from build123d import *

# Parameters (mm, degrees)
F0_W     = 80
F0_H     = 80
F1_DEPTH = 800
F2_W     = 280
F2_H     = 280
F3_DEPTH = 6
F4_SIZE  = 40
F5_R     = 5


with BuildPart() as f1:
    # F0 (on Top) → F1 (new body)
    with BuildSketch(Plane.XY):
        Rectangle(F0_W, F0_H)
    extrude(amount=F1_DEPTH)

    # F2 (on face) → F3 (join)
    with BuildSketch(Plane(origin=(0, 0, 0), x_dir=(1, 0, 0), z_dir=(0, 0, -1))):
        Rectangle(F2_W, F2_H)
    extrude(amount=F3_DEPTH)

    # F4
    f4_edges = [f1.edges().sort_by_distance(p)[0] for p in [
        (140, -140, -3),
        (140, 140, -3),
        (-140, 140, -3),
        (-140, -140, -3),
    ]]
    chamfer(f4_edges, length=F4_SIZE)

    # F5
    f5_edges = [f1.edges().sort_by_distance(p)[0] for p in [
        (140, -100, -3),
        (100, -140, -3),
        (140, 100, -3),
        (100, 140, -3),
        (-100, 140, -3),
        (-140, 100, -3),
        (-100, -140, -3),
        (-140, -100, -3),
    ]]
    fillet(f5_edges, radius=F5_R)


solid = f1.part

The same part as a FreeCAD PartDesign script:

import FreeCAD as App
import Part
import Sketcher
Q = App.Units.Quantity


def edges_at(feature, points):
    """Names of the edges that pass closest to the given points."""
    edges = feature.Shape.Edges
    near = lambda p: min(range(len(edges)), key=lambda i: edges[i].distToShape(Part.Vertex(*p))[0])
    return sorted({f"Edge{near(p) + 1}" for p in points})


def add_polygon(sketch, points):
    """Adds a closed chain of lines whose ends are joined by coincident constraints."""
    first, n = sketch.GeometryCount, len(points)
    for a, b in zip(points, points[1:] + points[:1]):
        sketch.addGeometry(Part.LineSegment(App.Vector(*a, 0), App.Vector(*b, 0)), False)
    for i in range(n):
        sketch.addConstraint(Sketcher.Constraint("Coincident", first + i, 2, first + (i + 1) % n, 1))

doc = App.newDocument("Part")
body = doc.addObject("PartDesign::Body", "Body")

# Sketch on XY plane
sketch1 = doc.addObject("Sketcher::SketchObject", "Sketch")
body.addObject(sketch1)
sketch1.AttachmentSupport = (doc.XY_Plane, [""])
sketch1.MapMode = "FlatFace"
add_polygon(sketch1, [(-40, 40), (-40, -40), (40, -40), (40, 40)])  # lines 0-3
sketch1.addConstraint(Sketcher.Constraint("Vertical", 0))
sketch1.addConstraint(Sketcher.Constraint("Horizontal", 1))
sketch1.addConstraint(Sketcher.Constraint("Vertical", 2))
sketch1.addConstraint(Sketcher.Constraint("Horizontal", 3))
sketch1.addConstraint(Sketcher.Constraint("Symmetric", 0, 2, 2, 2, -1, 1))
sketch1.addConstraint(Sketcher.Constraint("Equal", 3, 0))
sketch1.addConstraint(Sketcher.Constraint("DistanceX", 1, 1, 1, 2, Q("80 mm")))
pad1 = doc.addObject("PartDesign::Pad", "Pad")
body.addObject(pad1)
pad1.Profile = sketch1
pad1.Length = 800

# Sketch on XY plane
sketch2 = doc.addObject("Sketcher::SketchObject", "Sketch001")
body.addObject(sketch2)
sketch2.AttachmentSupport = (doc.XY_Plane, [""])
sketch2.MapMode = "FlatFace"
add_polygon(sketch2, [(-140, -140), (-140, 140), (140, 140), (140, -140)])  # lines 0-3
sketch2.addConstraint(Sketcher.Constraint("Vertical", 0))
sketch2.addConstraint(Sketcher.Constraint("Horizontal", 1))
sketch2.addConstraint(Sketcher.Constraint("Vertical", 2))
sketch2.addConstraint(Sketcher.Constraint("Horizontal", 3))
sketch2.addConstraint(Sketcher.Constraint("Symmetric", 0, 2, 2, 2, -1, 1))
sketch2.addConstraint(Sketcher.Constraint("Equal", 3, 0))
sketch2.addConstraint(Sketcher.Constraint("DistanceX", 1, 1, 1, 2, Q("280 mm")))
pad2 = doc.addObject("PartDesign::Pad", "Pad001")
body.addObject(pad2)
pad2.Profile = sketch2
pad2.Length = 6
pad2.Reversed = True
doc.recompute()

chamfer = doc.addObject("PartDesign::Chamfer", "Chamfer")
body.addObject(chamfer)
chamfer.Base = (pad2, edges_at(pad2, [
    (140, -140, -3),
    (140, 140, -3),
    (-140, 140, -3),
    (-140, -140, -3),
]))
chamfer.Size = 40
doc.recompute()

fillet = doc.addObject("PartDesign::Fillet", "Fillet")
body.addObject(fillet)
fillet.Base = (chamfer, edges_at(chamfer, [
    (140, -100, -3),
    (100, -140, -3),
    (140, 100, -3),
    (100, 140, -3),
    (-100, 140, -3),
    (-140, 100, -3),
    (-100, -140, -3),
    (-140, -100, -3),
]))
fillet.Radius = 5

doc.recompute()
